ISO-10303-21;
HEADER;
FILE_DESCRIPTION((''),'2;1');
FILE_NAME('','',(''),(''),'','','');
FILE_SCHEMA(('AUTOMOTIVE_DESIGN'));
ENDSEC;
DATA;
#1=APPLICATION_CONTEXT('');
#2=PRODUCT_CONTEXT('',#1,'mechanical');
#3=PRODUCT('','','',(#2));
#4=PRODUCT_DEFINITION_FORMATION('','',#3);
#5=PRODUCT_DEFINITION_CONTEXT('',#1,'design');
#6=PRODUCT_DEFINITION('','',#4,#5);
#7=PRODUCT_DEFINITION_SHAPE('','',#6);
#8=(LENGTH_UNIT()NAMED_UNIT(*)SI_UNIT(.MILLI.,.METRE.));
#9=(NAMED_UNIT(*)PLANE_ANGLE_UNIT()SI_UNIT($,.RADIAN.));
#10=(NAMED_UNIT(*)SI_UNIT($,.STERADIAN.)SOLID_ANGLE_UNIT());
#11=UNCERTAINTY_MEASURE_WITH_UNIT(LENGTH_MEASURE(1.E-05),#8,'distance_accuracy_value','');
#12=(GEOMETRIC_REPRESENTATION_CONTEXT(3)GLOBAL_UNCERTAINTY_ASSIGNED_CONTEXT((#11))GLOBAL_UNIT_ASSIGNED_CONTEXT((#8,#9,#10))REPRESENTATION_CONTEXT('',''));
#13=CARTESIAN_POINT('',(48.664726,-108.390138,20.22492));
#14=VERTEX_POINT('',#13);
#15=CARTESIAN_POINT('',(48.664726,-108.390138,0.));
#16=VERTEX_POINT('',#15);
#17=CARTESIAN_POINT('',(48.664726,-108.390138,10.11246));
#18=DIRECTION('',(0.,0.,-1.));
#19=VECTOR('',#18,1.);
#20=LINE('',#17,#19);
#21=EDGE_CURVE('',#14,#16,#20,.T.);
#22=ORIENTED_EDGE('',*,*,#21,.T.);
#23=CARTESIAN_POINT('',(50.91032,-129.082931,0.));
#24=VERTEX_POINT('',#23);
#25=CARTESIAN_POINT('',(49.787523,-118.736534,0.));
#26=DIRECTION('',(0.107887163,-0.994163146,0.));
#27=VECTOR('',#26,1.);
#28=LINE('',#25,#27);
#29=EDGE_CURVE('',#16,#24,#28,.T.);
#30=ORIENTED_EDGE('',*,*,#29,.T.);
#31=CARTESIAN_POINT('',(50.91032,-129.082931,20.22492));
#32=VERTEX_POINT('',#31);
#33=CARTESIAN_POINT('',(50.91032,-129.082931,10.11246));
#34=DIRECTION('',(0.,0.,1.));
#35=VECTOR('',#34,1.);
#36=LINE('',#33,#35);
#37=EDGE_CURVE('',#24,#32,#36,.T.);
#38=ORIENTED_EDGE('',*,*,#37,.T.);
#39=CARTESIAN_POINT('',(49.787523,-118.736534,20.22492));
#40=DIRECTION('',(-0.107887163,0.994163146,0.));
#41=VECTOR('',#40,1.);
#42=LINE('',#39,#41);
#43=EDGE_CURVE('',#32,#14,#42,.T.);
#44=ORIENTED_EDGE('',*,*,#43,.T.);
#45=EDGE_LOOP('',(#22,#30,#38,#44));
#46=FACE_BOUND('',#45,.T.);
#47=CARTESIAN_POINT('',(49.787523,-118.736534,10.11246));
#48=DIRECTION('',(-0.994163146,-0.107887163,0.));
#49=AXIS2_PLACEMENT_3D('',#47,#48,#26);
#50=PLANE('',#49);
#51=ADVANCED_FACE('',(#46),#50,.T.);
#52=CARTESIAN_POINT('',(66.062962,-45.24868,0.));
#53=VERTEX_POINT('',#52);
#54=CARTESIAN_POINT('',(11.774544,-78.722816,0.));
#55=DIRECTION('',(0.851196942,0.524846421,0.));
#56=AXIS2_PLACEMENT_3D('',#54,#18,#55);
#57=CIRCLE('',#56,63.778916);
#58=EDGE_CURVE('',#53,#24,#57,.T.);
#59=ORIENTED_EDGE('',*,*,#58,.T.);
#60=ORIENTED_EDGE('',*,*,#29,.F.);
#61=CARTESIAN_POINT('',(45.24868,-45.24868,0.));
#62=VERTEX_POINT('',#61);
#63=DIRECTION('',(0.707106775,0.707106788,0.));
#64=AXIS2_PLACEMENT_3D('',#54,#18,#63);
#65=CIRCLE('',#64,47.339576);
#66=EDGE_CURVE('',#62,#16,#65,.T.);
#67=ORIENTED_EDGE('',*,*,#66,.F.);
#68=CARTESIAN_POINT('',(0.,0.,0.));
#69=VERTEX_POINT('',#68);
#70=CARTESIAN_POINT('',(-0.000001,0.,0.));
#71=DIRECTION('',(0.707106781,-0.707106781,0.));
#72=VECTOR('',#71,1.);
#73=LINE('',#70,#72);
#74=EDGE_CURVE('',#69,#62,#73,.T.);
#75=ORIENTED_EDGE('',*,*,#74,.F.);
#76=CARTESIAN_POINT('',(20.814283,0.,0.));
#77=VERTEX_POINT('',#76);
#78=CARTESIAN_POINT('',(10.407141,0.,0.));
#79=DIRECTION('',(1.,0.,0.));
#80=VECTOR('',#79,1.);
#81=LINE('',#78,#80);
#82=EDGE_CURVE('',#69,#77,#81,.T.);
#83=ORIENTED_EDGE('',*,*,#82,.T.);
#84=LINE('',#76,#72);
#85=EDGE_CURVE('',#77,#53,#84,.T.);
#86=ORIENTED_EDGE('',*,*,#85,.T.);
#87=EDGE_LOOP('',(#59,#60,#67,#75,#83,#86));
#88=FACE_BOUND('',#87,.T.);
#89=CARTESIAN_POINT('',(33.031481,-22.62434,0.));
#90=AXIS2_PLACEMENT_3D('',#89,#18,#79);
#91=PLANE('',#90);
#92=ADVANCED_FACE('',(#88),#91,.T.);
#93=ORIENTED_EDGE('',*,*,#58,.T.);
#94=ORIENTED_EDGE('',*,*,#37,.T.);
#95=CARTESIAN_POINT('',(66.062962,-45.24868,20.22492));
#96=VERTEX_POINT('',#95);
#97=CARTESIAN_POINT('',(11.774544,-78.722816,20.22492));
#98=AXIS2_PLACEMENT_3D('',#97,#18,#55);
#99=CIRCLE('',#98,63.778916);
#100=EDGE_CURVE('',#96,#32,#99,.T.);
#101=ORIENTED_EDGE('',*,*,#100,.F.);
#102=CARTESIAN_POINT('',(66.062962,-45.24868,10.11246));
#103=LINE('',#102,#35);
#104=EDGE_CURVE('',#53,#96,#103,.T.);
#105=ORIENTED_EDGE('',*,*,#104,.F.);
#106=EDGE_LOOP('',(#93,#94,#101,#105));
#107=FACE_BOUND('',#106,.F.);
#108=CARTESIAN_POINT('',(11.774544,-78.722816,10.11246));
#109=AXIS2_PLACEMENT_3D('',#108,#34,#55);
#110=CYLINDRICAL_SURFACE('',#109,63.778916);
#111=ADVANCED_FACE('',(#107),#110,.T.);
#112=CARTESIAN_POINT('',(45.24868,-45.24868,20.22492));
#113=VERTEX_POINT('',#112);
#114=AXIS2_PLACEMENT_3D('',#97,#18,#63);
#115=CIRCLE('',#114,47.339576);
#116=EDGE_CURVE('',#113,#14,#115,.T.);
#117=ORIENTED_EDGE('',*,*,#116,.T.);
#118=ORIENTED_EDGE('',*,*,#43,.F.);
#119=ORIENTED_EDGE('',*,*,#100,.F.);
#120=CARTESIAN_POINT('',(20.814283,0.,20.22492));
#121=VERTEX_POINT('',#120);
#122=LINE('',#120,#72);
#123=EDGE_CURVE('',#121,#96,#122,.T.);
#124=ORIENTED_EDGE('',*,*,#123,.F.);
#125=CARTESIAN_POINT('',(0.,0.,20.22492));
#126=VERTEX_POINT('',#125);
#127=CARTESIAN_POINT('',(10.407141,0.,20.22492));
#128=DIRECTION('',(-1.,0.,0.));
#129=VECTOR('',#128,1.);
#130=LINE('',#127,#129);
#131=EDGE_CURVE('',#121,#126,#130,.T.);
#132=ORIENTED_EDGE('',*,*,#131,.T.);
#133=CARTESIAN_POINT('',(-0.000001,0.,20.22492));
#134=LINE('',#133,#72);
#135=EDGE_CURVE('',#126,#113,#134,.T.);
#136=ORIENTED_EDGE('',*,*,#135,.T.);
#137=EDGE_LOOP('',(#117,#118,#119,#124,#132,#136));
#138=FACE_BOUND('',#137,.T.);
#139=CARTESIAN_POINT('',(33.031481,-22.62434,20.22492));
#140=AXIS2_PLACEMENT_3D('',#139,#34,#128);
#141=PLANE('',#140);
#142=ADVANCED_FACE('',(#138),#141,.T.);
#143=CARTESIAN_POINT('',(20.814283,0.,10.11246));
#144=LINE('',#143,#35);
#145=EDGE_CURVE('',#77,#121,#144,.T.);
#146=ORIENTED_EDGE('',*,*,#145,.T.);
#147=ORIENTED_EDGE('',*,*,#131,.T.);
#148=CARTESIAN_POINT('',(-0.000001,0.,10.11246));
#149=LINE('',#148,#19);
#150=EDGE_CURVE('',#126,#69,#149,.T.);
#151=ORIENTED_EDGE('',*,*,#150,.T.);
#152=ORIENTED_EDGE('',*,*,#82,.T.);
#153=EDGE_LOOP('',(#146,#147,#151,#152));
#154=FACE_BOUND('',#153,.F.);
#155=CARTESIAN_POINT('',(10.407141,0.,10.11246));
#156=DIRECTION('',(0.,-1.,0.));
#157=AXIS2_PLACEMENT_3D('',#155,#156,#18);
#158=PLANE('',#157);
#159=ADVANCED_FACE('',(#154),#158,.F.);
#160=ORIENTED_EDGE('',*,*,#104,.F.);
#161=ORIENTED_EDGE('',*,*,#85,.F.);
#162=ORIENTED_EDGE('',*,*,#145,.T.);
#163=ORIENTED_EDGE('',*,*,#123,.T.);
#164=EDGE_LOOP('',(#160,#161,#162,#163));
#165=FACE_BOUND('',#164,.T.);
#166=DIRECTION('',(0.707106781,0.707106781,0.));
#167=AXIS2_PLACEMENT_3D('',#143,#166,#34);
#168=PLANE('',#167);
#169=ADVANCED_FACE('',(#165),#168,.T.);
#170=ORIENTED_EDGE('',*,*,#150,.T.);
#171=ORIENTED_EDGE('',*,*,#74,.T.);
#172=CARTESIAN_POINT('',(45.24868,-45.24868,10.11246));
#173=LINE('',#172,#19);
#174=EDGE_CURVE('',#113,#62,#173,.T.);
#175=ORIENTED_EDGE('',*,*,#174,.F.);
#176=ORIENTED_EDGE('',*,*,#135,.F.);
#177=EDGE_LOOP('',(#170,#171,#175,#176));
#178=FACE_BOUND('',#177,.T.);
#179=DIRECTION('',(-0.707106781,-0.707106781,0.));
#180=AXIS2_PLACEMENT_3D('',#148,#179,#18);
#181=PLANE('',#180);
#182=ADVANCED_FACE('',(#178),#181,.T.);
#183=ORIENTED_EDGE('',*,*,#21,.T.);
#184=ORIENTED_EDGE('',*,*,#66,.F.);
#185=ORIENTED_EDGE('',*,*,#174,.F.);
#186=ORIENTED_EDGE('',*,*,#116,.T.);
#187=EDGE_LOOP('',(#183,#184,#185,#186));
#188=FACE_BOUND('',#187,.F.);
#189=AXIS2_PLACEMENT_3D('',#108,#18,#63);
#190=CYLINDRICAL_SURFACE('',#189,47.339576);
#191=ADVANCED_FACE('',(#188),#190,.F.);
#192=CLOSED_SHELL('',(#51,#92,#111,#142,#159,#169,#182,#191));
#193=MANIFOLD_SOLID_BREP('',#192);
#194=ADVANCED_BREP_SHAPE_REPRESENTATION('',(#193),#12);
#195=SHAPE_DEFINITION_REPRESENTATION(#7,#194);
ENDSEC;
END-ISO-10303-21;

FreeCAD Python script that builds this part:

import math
import FreeCAD as App
import Part
import Sketcher
Q = App.Units.Quantity


def add_polygon(sketch, points):
    """Adds a closed chain of lines whose ends are joined by coincident constraints."""
    first, n = sketch.GeometryCount, len(points)
    for a, b in zip(points, points[1:] + points[:1]):
        sketch.addGeometry(Part.LineSegment(App.Vector(*a, 0), App.Vector(*b, 0)), False)
    for i in range(n):
        sketch.addConstraint(Sketcher.Constraint("Coincident", first + i, 2, first + (i + 1) % n, 1))

doc = App.newDocument("Part")
body = doc.addObject("PartDesign::Body", "Body")

sketch1 = body.newObject("Sketcher::SketchObject", "Sketch")
sketch1.AttachmentSupport = (doc.getObject("XZ_Plane"), [""])
sketch1.MapMode = "FlatFace"
add_polygon(sketch1, [(0, 20), (0, 0), (21, 0), (21, 20)])
sketch1.addConstraint([
    Sketcher.Constraint("Vertical", 0),
    Sketcher.Constraint("Horizontal", 1),
    Sketcher.Constraint("Vertical", 2),
    Sketcher.Constraint("Horizontal", 3),
    Sketcher.Constraint("Coincident", 0, 2, -1, 1),
    Sketcher.Constraint("DistanceY", 0, 2, 0, 1, Q("20.22492 mm")),
    Sketcher.Constraint("DistanceX", 1, 1, 1, 2, Q("20.814283 mm")),
])

sketch2 = body.newObject("Sketcher::SketchObject", "Sketch001")
sketch2.AttachmentSupport = (doc.getObject("XY_Plane"), [""])
sketch2.MapMode = "FlatFace"
sketch2.addGeometry([
    Part.LineSegment(App.Vector(0, 0, 0), App.Vector(45, -45, 0)),
    Part.ArcOfCircle(Part.Circle(App.Vector(12, -79, 0), App.Vector(0, 0, 1), 47), math.radians(-39), math.radians(45)),
], False)
sketch2.addConstraint([
    Sketcher.Constraint("Tangent", 0, 2, 1, 2),
    Sketcher.Constraint("Coincident", 0, 1, -1, 1),
    Sketcher.Constraint("Angle", 0, Q("-45 deg")),
    Sketcher.Constraint("Radius", 1, Q("47.339577 mm")),
    Sketcher.Constraint("DistanceX", -1, 1, 0, 2, Q("45.24868 mm")),
    Sketcher.Constraint("DistanceX", 1, 3, 1, 1, Q("36.890182 mm")),
])
doc.recompute()

additivepipe = body.newObject("PartDesign::AdditivePipe", "AdditivePipe")
additivepipe.Profile = sketch1
additivepipe.Spine = (sketch2, ["Edge1", "Edge2"])

doc.recompute()
